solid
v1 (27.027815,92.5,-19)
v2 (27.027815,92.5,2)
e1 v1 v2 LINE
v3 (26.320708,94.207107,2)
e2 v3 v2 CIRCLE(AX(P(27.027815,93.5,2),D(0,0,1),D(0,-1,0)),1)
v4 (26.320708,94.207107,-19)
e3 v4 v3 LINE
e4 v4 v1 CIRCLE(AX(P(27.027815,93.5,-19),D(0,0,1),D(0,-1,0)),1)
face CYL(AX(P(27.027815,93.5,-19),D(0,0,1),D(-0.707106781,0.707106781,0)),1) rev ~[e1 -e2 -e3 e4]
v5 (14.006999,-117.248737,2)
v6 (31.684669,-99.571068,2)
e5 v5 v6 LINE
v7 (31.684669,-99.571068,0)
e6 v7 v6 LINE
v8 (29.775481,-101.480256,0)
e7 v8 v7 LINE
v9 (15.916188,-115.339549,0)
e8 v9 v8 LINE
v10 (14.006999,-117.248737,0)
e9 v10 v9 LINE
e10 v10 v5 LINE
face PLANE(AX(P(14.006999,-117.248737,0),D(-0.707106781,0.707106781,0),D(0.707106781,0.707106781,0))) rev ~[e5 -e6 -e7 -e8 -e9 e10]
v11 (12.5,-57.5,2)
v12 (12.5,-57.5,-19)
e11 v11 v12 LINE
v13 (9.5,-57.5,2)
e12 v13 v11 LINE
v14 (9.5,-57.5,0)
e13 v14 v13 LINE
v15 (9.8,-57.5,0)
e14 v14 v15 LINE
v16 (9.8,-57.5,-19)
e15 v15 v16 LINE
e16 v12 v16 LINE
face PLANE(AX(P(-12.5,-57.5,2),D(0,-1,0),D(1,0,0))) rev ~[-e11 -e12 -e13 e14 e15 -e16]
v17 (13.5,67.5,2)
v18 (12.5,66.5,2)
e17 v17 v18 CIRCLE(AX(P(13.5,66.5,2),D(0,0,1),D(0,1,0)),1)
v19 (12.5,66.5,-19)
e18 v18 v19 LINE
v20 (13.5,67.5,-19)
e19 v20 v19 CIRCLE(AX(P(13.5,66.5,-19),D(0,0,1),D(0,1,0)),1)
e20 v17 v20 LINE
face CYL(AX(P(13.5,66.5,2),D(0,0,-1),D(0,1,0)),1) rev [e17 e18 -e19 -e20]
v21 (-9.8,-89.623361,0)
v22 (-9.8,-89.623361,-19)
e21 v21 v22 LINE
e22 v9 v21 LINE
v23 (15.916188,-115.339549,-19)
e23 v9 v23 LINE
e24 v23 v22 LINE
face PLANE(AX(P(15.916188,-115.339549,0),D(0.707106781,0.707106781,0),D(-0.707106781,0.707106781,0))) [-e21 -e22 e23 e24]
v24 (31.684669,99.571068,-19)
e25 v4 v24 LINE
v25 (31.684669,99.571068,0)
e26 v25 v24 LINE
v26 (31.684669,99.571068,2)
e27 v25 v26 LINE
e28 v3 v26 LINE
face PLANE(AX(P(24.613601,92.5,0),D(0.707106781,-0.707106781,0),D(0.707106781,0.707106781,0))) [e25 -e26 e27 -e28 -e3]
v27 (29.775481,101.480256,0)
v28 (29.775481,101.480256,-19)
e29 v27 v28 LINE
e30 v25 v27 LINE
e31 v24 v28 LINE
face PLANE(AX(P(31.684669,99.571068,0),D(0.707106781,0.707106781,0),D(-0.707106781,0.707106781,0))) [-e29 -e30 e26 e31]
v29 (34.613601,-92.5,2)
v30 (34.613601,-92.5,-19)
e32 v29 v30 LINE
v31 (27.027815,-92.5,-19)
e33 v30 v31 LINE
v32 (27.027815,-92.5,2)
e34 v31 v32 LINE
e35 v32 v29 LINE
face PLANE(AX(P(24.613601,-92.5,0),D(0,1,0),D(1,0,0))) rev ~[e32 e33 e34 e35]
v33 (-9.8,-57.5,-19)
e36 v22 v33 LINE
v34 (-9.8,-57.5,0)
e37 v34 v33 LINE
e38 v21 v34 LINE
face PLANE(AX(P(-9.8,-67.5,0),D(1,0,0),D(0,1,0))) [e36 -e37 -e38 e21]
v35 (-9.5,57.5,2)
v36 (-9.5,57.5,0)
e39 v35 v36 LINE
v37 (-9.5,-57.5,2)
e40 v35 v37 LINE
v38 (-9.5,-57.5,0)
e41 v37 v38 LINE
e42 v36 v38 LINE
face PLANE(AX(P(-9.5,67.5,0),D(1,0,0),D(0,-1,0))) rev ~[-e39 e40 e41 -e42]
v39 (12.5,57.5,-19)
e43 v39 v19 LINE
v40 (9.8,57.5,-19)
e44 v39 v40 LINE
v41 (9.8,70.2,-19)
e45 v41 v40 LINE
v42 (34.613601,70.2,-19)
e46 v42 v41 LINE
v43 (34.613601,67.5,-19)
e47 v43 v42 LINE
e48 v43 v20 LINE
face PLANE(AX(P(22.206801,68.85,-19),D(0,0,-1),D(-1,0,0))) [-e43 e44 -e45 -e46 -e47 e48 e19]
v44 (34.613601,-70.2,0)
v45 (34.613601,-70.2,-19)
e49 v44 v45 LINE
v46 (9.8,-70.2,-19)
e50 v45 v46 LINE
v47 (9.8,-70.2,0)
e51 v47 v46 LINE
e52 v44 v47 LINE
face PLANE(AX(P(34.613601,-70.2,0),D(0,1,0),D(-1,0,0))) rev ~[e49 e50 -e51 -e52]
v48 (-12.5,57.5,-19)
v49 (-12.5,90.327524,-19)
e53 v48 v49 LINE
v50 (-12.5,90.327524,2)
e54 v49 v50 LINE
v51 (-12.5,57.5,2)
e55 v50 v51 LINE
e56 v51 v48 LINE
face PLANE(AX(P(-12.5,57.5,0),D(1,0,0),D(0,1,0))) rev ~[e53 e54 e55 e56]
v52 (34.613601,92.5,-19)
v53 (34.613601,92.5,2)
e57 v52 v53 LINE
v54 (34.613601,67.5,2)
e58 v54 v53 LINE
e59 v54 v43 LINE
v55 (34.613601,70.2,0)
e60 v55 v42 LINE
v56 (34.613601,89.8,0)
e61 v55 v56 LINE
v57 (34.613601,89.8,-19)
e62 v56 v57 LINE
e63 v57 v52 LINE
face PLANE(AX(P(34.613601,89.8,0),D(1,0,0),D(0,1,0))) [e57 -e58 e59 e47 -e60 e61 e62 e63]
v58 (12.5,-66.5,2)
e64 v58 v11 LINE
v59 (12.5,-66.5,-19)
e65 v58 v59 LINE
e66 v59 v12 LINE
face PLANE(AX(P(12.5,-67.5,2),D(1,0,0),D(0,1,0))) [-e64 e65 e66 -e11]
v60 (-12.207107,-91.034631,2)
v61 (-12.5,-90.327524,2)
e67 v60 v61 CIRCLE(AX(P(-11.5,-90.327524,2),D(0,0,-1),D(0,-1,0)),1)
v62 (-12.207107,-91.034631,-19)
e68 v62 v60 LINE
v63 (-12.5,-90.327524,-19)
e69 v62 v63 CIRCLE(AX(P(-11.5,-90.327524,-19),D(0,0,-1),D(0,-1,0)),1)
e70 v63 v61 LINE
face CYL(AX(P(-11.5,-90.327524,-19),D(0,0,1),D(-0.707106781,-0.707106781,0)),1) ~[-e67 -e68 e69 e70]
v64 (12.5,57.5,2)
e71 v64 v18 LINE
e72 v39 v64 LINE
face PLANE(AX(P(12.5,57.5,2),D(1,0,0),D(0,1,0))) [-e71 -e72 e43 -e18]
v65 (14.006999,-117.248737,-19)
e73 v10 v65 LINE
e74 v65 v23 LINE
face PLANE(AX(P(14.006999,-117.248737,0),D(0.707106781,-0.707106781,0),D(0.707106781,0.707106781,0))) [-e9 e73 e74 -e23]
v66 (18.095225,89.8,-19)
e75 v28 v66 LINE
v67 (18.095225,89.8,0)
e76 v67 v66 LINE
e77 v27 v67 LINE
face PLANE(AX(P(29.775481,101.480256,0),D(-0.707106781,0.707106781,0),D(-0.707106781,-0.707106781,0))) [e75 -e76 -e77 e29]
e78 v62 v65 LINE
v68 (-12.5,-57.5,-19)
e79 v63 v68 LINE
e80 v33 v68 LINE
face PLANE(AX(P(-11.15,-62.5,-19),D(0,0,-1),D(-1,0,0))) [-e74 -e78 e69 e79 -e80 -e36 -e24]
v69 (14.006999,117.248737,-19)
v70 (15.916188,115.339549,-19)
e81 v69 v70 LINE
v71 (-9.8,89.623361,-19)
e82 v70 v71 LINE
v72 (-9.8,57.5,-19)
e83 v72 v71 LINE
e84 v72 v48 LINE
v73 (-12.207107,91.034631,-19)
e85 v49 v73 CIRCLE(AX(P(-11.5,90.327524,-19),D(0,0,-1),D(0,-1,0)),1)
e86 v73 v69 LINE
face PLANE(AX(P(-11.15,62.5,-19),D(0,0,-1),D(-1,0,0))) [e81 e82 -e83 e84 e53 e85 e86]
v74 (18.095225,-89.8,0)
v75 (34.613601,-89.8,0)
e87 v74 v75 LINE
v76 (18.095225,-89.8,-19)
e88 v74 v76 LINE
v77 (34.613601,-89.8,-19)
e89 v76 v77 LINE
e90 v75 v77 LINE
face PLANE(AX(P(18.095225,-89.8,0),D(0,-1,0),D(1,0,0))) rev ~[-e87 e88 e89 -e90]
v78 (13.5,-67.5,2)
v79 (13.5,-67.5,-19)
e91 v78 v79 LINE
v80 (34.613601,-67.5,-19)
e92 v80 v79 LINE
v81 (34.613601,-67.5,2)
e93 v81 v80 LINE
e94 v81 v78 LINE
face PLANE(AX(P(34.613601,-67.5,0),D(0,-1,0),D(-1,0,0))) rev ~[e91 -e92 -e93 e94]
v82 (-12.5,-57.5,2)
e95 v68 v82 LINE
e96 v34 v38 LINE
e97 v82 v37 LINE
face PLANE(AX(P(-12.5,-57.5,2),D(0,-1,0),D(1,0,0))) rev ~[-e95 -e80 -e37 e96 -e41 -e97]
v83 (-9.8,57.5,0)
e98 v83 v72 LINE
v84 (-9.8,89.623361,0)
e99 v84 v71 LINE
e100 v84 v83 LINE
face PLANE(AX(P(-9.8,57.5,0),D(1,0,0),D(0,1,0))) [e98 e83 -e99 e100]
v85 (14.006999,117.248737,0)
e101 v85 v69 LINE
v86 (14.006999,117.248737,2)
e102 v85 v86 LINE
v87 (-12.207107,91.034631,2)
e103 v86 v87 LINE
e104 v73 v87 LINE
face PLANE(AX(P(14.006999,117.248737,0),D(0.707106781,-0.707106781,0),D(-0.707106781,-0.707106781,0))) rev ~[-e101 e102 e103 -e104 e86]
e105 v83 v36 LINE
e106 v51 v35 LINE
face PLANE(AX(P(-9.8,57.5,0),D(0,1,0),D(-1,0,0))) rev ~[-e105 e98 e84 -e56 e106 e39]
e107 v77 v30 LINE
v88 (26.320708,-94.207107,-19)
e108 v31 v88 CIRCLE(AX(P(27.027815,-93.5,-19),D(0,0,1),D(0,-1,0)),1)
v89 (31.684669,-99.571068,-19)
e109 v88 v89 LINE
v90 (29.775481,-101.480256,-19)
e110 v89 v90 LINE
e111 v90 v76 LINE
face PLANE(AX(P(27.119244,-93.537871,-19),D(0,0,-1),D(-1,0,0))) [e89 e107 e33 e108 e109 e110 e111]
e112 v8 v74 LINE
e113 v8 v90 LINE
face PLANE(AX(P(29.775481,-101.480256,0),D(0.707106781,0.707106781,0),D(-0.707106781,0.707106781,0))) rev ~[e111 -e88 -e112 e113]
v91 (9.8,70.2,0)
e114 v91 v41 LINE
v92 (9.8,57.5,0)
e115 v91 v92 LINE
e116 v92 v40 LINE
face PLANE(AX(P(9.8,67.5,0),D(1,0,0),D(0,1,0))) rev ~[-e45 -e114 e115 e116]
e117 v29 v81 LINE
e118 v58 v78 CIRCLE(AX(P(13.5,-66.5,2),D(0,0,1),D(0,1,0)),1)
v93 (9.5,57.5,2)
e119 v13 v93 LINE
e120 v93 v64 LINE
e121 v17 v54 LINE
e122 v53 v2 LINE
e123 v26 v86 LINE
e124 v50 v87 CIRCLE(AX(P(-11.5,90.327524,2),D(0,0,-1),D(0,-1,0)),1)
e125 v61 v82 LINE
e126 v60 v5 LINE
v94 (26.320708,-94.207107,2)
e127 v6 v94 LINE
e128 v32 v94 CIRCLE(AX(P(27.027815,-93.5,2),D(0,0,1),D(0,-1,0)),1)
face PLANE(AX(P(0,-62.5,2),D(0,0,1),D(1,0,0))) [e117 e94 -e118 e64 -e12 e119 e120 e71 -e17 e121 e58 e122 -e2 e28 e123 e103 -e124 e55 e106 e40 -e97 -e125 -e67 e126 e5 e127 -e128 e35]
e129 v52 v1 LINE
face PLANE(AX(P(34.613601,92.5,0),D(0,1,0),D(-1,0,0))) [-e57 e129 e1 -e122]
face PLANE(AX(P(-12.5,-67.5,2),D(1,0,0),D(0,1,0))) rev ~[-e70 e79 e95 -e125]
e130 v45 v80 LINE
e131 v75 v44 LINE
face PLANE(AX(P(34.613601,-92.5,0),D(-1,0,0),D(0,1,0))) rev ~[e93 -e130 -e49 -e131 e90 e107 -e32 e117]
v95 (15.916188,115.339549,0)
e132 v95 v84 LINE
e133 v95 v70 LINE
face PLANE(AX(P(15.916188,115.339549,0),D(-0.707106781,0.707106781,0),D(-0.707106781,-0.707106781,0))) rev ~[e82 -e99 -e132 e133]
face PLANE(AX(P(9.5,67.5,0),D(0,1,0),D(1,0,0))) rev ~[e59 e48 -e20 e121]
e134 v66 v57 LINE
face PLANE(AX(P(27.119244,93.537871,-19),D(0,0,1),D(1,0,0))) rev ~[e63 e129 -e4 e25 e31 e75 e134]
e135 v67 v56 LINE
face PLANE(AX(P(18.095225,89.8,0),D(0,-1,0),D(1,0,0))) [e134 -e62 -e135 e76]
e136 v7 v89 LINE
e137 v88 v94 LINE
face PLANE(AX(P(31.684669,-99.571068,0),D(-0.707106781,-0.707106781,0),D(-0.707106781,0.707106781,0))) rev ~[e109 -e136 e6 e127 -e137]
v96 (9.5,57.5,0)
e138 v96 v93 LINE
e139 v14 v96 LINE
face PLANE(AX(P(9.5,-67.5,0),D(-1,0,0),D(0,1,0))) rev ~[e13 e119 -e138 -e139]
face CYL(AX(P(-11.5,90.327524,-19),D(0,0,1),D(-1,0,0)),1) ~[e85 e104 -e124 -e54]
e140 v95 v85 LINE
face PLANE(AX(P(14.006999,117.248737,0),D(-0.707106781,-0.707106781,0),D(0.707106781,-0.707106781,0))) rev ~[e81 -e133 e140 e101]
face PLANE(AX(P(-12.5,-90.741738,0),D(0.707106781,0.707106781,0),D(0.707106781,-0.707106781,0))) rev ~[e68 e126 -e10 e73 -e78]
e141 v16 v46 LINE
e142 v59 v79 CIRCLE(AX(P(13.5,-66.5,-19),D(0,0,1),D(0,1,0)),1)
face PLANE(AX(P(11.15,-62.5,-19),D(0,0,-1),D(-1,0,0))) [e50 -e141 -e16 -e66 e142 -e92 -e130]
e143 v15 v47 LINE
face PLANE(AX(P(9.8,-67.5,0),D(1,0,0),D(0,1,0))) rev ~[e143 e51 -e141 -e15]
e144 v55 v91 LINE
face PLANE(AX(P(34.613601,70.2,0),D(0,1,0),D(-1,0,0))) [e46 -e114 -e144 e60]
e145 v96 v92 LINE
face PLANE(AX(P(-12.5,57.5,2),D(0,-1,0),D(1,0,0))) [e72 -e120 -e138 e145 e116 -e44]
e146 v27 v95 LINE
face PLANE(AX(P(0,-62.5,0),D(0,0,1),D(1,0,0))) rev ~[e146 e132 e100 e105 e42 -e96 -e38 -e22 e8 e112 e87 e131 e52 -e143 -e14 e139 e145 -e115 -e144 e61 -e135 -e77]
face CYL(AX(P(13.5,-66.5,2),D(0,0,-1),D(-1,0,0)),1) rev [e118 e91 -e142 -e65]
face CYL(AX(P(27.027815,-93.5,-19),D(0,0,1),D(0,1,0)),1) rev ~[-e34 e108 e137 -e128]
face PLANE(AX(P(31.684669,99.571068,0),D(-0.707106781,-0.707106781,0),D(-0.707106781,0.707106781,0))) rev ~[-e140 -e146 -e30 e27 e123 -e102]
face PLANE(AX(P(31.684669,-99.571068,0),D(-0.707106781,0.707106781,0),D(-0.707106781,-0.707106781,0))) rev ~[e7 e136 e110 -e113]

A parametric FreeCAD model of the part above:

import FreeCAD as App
import Part
import Sketcher
from FreeCAD import Vector


def edges_at(feature, points):
    """Names of the edges that pass closest to the given points."""
    edges = feature.Shape.Edges
    near = lambda p: min(range(len(edges)), key=lambda i: edges[i].distToShape(Part.Vertex(*p))[0])
    return sorted({f"Edge{near(p) + 1}" for p in points})


def add_polygon(sketch, points):
    """Adds a closed chain of lines whose ends are joined by coincident constraints."""
    first, n = sketch.GeometryCount, len(points)
    for a, b in zip(points, points[1:] + points[:1]):
        sketch.addGeometry(Part.LineSegment(App.Vector(*a, 0), App.Vector(*b, 0)), False)
    for i in range(n):
        sketch.addConstraint(Sketcher.Constraint("Coincident", first + i, 2, first + (i + 1) % n, 1))

doc = App.newDocument("Part")
body = doc.addObject("PartDesign::Body", "Body")

# Sketch on XY plane
sketch1 = body.newObject("Sketcher::SketchObject", "Sketch")
sketch1.AttachmentSupport = (doc.getObject("XY_Plane"), [""])
sketch1.MapMode = "FlatFace"
add_polygon(sketch1, [(-9.5, -67.5), (-12.5, -67.5), (-12.5, -90.7), (14, -117.2), (31.7, -99.6), (24.6, -92.5), (34.6, -92.5), (34.6, -67.5), (9.5, -67.5), (9.5, 67.5), (34.6, 67.5), (34.6, 92.5), (24.6, 92.5), (31.7, 99.6), (14, 117.2), (-12.5, 90.7), (-12.5, 67.5), (-9.5, 67.5)])  # lines 0-17
sketch1.addConstraint(Sketcher.Constraint("Horizontal", 0))
sketch1.addConstraint(Sketcher.Constraint("Vertical", 1))
sketch1.addConstraint(Sketcher.Constraint("Horizontal", 5))
sketch1.addConstraint(Sketcher.Constraint("Vertical", 6))
sketch1.addConstraint(Sketcher.Constraint("Horizontal", 7))
sketch1.addConstraint(Sketcher.Constraint("Vertical", 8))
sketch1.addConstraint(Sketcher.Constraint("Horizontal", 9))
sketch1.addConstraint(Sketcher.Constraint("Vertical", 10))
sketch1.addConstraint(Sketcher.Constraint("Horizontal", 11))
sketch1.addConstraint(Sketcher.Constraint("Vertical", 15))
sketch1.addConstraint(Sketcher.Constraint("Horizontal", 16))
sketch1.addConstraint(Sketcher.Constraint("Vertical", 17))
sketch1.addConstraint(Sketcher.Constraint("Symmetric", 7, 2, 16, 2, -1, 1))
sketch1.addConstraint(Sketcher.Constraint("Symmetric", 6, 2, 9, 2, -1))
sketch1.addConstraint(Sketcher.Constraint("Symmetric", 4, 2, 11, 2, -1))
sketch1.addConstraint(Sketcher.Constraint("Symmetric", 3, 2, 12, 2, -1))
sketch1.addConstraint(Sketcher.Constraint("Symmetric", 2, 2, 13, 2, -1))
sketch1.addConstraint(Sketcher.Constraint("Symmetric", 1, 2, 14, 2, -1))
sketch1.addConstraint(Sketcher.Constraint("Perpendicular", 2, 3))
sketch1.addConstraint(Sketcher.Constraint("Perpendicular", 3, 4))
sketch1.addConstraint(Sketcher.Constraint("Perpendicular", 4, 12))
sketch1.addConstraint(Sketcher.Constraint("Horizontal", 0, 2, 6, 2))
sketch1.addConstraint(Sketcher.Constraint("DistanceX", 0, 2, 0, 1, 3.0))
sketch1.addConstraint(Sketcher.Constraint("DistanceX", 5, 1, 5, 2, 10.0))
sketch1.addConstraint(Sketcher.Constraint("DistanceY", 6, 1, 6, 2, 25.0))
sketch1.addConstraint(Sketcher.Constraint("DistanceY", 8, 1, 8, 2, 135.0))
sketch1.addConstraint(Sketcher.Constraint("Distance", 3, 25.0))
sketch1.addConstraint(Sketcher.Constraint("Distance", 4, 10.0))
sketch1.addConstraint(Sketcher.Constraint("DistanceX", 0, 2, 7, 2, 22.0))
sketch1.addConstraint(Sketcher.Constraint("DistanceX", 7, 2, 7, 1, 25.113601))
pad1 = body.newObject("PartDesign::Pad", "Pad")
pad1.Profile = sketch1
pad1.Length = 2

# Sketch on XY plane
sketch2 = body.newObject("Sketcher::SketchObject", "Sketch001")
sketch2.AttachmentSupport = (doc.getObject("XY_Plane"), [""])
sketch2.MapMode = "FlatFace"
add_polygon(sketch2, [(34.6, 92.5), (34.6, 89.8), (18.1, 89.8), (29.8, 101.5), (31.7, 99.6), (24.6, 92.5)])  # lines 0-5
add_polygon(sketch2, [(34.6, 70.2), (34.6, 67.5), (9.8, 67.5), (9.8, 70.2)])  # lines 6-9
add_polygon(sketch2, [(-9.8, 67.5), (-12.5, 67.5), (-12.5, 90.7), (14, 117.2), (15.9, 115.3), (-9.8, 89.6)])  # lines 10-15
add_polygon(sketch2, [(31.7, -99.6), (29.8, -101.5), (18.1, -89.8), (34.6, -89.8), (34.6, -92.5), (24.6, -92.5)])  # lines 16-21
add_polygon(sketch2, [(34.6, -67.5), (34.6, -70.2), (9.8, -70.2), (9.8, -67.5)])  # lines 22-25
add_polygon(sketch2, [(15.9, -115.3), (14, -117.2), (-12.5, -90.7), (-12.5, -67.5), (-9.8, -67.5), (-9.8, -89.6)])  # lines 26-31
sketch2.addConstraint(Sketcher.Constraint("Vertical", 0))
sketch2.addConstraint(Sketcher.Constraint("Horizontal", 1))
sketch2.addConstraint(Sketcher.Constraint("Horizontal", 5))
sketch2.addConstraint(Sketcher.Constraint("Vertical", 6))
sketch2.addConstraint(Sketcher.Constraint("Horizontal", 7))
sketch2.addConstraint(Sketcher.Constraint("Vertical", 8))
sketch2.addConstraint(Sketcher.Constraint("Horizontal", 9))
sketch2.addConstraint(Sketcher.Constraint("Horizontal", 10))
sketch2.addConstraint(Sketcher.Constraint("Vertical", 11))
sketch2.addConstraint(Sketcher.Constraint("Vertical", 15))
sketch2.addConstraint(Sketcher.Constraint("Horizontal", 18))
sketch2.addConstraint(Sketcher.Constraint("Vertical", 19))
sketch2.addConstraint(Sketcher.Constraint("Horizontal", 20))
sketch2.addConstraint(Sketcher.Constraint("Vertical", 22))
sketch2.addConstraint(Sketcher.Constraint("Horizontal", 23))
sketch2.addConstraint(Sketcher.Constraint("Vertical", 24))
sketch2.addConstraint(Sketcher.Constraint("Horizontal", 25))
sketch2.addConstraint(Sketcher.Constraint("Vertical", 28))
sketch2.addConstraint(Sketcher.Constraint("Horizontal", 29))
sketch2.addConstraint(Sketcher.Constraint("Vertical", 30))
sketch2.addConstraint(Sketcher.Constraint("Symmetric", 15, 2, 24, 2, -1, 1))
sketch2.addConstraint(Sketcher.Constraint("Symmetric", 7, 2, 29, 2, -1, 1))
sketch2.addConstraint(Sketcher.Constraint("Symmetric", 7, 2, 15, 2, -2))
sketch2.addConstraint(Sketcher.Constraint("Symmetric", 2, 2, 16, 2, -1))
sketch2.addConstraint(Sketcher.Constraint("Symmetric", 1, 2, 17, 2, -1))
sketch2.addConstraint(Sketcher.Constraint("Symmetric", 5, 2, 19, 2, -1))
sketch2.addConstraint(Sketcher.Constraint("Symmetric", 3, 2, 21, 2, -1))
sketch2.addConstraint(Sketcher.Constraint("Symmetric", 9, 2, 22, 2, -1))
sketch2.addConstraint(Sketcher.Constraint("Symmetric", 12, 2, 26, 2, -1))
sketch2.addConstraint(Sketcher.Constraint("Symmetric", 11, 2, 27, 2, -1))
sketch2.addConstraint(Sketcher.Constraint("Symmetric", 13, 2, 31, 2, -1))
sketch2.addConstraint(Sketcher.Constraint("Perpendicular", 2, 3))
sketch2.addConstraint(Sketcher.Constraint("Perpendicular", 3, 4))
sketch2.addConstraint(Sketcher.Constraint("Parallel", 4, 12))
sketch2.addConstraint(Sketcher.Constraint("Perpendicular", 12, 13))
sketch2.addConstraint(Sketcher.Constraint("Perpendicular", 13, 14))
sketch2.addConstraint(Sketcher.Constraint("Parallel", 14, 16))
sketch2.addConstraint(Sketcher.Constraint("Parallel", 17, 21))
sketch2.addConstraint(Sketcher.Constraint("Parallel", 27, 31))
sketch2.addConstraint(Sketcher.Constraint("Vertical", 5, 2, 6, 2))
sketch2.addConstraint(Sketcher.Constraint("Equal", 29, 0))
sketch2.addConstraint(Sketcher.Constraint("Equal", 0, 6))
sketch2.addConstraint(Sketcher.Constraint("Equal", 3, 13))
sketch2.addConstraint(Sketcher.Constraint("DistanceX", 5, 1, 5, 2, 10.0))
sketch2.addConstraint(Sketcher.Constraint("Distance", 4, 10.0))
sketch2.addConstraint(Sketcher.Constraint("DistanceX", 10, 2, 10, 1, 2.7))
sketch2.addConstraint(Sketcher.Constraint("DistanceY", 6, 2, 5, 2, 25.0))
sketch2.addConstraint(Sketcher.Constraint("DistanceY", 17, 2, 8, 2, 160.0))
sketch2.addConstraint(Sketcher.Constraint("Distance", 3, 2.7))
sketch2.addConstraint(Sketcher.Constraint("DistanceX", -1, 1, 7, 2, 9.8))
sketch2.addConstraint(Sketcher.Constraint("DistanceX", 7, 2, 7, 1, 24.813601))
sketch2.addConstraint(Sketcher.Constraint("DistanceX", -1, 1, 12, 2, 14.006999))
sketch2.addConstraint(Sketcher.Constraint("DistanceY", 15, 2, 15, 1, 22.123361))
pad2 = body.newObject("PartDesign::Pad", "Pad001")
pad2.Profile = sketch2
pad2.Length = 19
pad2.Reversed = True

# Sketch on XY plane
sketch3 = body.newObject("Sketcher::SketchObject", "Sketch002")
sketch3.AttachmentSupport = (doc.getObject("XY_Plane"), [""])
sketch3.MapMode = "FlatFace"
sketch3.AttachmentOffset = App.Placement(Vector(0, 0, 2), App.Rotation())
add_polygon(sketch3, [(-12, -58), (-12, -68), (12, -68), (12, -58)])  # lines 0-3
add_polygon(sketch3, [(-12, 68), (-12, 58), (12, 58), (12, 68)])  # lines 4-7
sketch3.addConstraint(Sketcher.Constraint("Vertical", 0))
sketch3.addConstraint(Sketcher.Constraint("Horizontal", 1))
sketch3.addConstraint(Sketcher.Constraint("Vertical", 2))
sketch3.addConstraint(Sketcher.Constraint("Horizontal", 3))
sketch3.addConstraint(Sketcher.Constraint("Vertical", 4))
sketch3.addConstraint(Sketcher.Constraint("Horizontal", 5))
sketch3.addConstraint(Sketcher.Constraint("Vertical", 6))
sketch3.addConstraint(Sketcher.Constraint("Horizontal", 7))
sketch3.addConstraint(Sketcher.Constraint("Symmetric", 2, 2, 4, 2, -1, 1))
sketch3.addConstraint(Sketcher.Constraint("Symmetric", 0, 2, 6, 2, -1, 1))
sketch3.addConstraint(Sketcher.Constraint("Vertical", 3, 2, 4, 2))
sketch3.addConstraint(Sketcher.Constraint("DistanceX", 1, 1, 1, 2, 25.0))
sketch3.addConstraint(Sketcher.Constraint("DistanceY", 0, 2, 0, 1, 10.0))
sketch3.addConstraint(Sketcher.Constraint("DistanceY", 3, 2, 4, 2, 115.0))
pad3 = body.newObject("PartDesign::Pad", "Pad002")
pad3.Profile = sketch3
pad3.Length = 2
pad3.Reversed = True

# Sketch on XY plane
sketch4 = body.newObject("Sketcher::SketchObject", "Sketch003")
sketch4.AttachmentSupport = (doc.getObject("XY_Plane"), [""])
sketch4.MapMode = "FlatFace"
add_polygon(sketch4, [(-9.8, 67.5), (-9.8, 57.5), (-12.5, 57.5), (-12.5, 67.5)])  # lines 0-3
add_polygon(sketch4, [(12.5, 67.5), (12.5, 57.5), (9.8, 57.5), (9.8, 67.5)])  # lines 4-7
add_polygon(sketch4, [(-9.8, -57.5), (-9.8, -67.5), (-12.5, -67.5), (-12.5, -57.5)])  # lines 8-11
add_polygon(sketch4, [(12.5, -57.5), (12.5, -67.5), (9.8, -67.5), (9.8, -57.5)])  # lines 12-15
sketch4.addConstraint(Sketcher.Constraint("Vertical", 0))
sketch4.addConstraint(Sketcher.Constraint("Horizontal", 1))
sketch4.addConstraint(Sketcher.Constraint("Vertical", 2))
sketch4.addConstraint(Sketcher.Constraint("Horizontal", 3))
sketch4.addConstraint(Sketcher.Constraint("Vertical", 4))
sketch4.addConstraint(Sketcher.Constraint("Horizontal", 5))
sketch4.addConstraint(Sketcher.Constraint("Vertical", 6))
sketch4.addConstraint(Sketcher.Constraint("Horizontal", 7))
sketch4.addConstraint(Sketcher.Constraint("Vertical", 8))
sketch4.addConstraint(Sketcher.Constraint("Horizontal", 9))
sketch4.addConstraint(Sketcher.Constraint("Vertical", 10))
sketch4.addConstraint(Sketcher.Constraint("Horizontal", 11))
sketch4.addConstraint(Sketcher.Constraint("Vertical", 12))
sketch4.addConstraint(Sketcher.Constraint("Horizontal", 13))
sketch4.addConstraint(Sketcher.Constraint("Vertical", 14))
sketch4.addConstraint(Sketcher.Constraint("Horizontal", 15))
sketch4.addConstraint(Sketcher.Constraint("Symmetric", 6, 2, 8, 2, -1, 1))
sketch4.addConstraint(Sketcher.Constraint("Symmetric", 4, 2, 10, 2, -1, 1))
sketch4.addConstraint(Sketcher.Constraint("Symmetric", 2, 2, 12, 2, -1, 1))
sketch4.addConstraint(Sketcher.Constraint("Symmetric", 0, 2, 14, 2, -1, 1))
sketch4.addConstraint(Sketcher.Constraint("Symmetric", 1, 2, 4, 2, -2))
sketch4.addConstraint(Sketcher.Constraint("Symmetric", 3, 2, 6, 2, -2))
sketch4.addConstraint(Sketcher.Constraint("DistanceY", 0, 2, 0, 1, 10.0))
sketch4.addConstraint(Sketcher.Constraint("DistanceX", 1, 2, 1, 1, 2.7))
sketch4.addConstraint(Sketcher.Constraint("DistanceX", 1, 2, 4, 2, 25.0))
sketch4.addConstraint(Sketcher.Constraint("DistanceY", 8, 2, 0, 2, 125.0))
pad4 = body.newObject("PartDesign::Pad", "Pad003")
pad4.Profile = sketch4
pad4.Length = 19
pad4.Reversed = True
doc.recompute()

fillet = body.newObject("PartDesign::Fillet", "Fillet")
fillet.Base = (pad4, edges_at(pad4, [
    (12.5, -67.5, -8.5),
    (12.5, 67.5, -8.5),
    (-12.5, 90.742, -8.5),
    (24.614, 92.5, -8.5),
    (24.614, -92.5, -8.5),
    (-12.5, -90.742, -8.5),
]))
fillet.Radius = 1

doc.recompute()
